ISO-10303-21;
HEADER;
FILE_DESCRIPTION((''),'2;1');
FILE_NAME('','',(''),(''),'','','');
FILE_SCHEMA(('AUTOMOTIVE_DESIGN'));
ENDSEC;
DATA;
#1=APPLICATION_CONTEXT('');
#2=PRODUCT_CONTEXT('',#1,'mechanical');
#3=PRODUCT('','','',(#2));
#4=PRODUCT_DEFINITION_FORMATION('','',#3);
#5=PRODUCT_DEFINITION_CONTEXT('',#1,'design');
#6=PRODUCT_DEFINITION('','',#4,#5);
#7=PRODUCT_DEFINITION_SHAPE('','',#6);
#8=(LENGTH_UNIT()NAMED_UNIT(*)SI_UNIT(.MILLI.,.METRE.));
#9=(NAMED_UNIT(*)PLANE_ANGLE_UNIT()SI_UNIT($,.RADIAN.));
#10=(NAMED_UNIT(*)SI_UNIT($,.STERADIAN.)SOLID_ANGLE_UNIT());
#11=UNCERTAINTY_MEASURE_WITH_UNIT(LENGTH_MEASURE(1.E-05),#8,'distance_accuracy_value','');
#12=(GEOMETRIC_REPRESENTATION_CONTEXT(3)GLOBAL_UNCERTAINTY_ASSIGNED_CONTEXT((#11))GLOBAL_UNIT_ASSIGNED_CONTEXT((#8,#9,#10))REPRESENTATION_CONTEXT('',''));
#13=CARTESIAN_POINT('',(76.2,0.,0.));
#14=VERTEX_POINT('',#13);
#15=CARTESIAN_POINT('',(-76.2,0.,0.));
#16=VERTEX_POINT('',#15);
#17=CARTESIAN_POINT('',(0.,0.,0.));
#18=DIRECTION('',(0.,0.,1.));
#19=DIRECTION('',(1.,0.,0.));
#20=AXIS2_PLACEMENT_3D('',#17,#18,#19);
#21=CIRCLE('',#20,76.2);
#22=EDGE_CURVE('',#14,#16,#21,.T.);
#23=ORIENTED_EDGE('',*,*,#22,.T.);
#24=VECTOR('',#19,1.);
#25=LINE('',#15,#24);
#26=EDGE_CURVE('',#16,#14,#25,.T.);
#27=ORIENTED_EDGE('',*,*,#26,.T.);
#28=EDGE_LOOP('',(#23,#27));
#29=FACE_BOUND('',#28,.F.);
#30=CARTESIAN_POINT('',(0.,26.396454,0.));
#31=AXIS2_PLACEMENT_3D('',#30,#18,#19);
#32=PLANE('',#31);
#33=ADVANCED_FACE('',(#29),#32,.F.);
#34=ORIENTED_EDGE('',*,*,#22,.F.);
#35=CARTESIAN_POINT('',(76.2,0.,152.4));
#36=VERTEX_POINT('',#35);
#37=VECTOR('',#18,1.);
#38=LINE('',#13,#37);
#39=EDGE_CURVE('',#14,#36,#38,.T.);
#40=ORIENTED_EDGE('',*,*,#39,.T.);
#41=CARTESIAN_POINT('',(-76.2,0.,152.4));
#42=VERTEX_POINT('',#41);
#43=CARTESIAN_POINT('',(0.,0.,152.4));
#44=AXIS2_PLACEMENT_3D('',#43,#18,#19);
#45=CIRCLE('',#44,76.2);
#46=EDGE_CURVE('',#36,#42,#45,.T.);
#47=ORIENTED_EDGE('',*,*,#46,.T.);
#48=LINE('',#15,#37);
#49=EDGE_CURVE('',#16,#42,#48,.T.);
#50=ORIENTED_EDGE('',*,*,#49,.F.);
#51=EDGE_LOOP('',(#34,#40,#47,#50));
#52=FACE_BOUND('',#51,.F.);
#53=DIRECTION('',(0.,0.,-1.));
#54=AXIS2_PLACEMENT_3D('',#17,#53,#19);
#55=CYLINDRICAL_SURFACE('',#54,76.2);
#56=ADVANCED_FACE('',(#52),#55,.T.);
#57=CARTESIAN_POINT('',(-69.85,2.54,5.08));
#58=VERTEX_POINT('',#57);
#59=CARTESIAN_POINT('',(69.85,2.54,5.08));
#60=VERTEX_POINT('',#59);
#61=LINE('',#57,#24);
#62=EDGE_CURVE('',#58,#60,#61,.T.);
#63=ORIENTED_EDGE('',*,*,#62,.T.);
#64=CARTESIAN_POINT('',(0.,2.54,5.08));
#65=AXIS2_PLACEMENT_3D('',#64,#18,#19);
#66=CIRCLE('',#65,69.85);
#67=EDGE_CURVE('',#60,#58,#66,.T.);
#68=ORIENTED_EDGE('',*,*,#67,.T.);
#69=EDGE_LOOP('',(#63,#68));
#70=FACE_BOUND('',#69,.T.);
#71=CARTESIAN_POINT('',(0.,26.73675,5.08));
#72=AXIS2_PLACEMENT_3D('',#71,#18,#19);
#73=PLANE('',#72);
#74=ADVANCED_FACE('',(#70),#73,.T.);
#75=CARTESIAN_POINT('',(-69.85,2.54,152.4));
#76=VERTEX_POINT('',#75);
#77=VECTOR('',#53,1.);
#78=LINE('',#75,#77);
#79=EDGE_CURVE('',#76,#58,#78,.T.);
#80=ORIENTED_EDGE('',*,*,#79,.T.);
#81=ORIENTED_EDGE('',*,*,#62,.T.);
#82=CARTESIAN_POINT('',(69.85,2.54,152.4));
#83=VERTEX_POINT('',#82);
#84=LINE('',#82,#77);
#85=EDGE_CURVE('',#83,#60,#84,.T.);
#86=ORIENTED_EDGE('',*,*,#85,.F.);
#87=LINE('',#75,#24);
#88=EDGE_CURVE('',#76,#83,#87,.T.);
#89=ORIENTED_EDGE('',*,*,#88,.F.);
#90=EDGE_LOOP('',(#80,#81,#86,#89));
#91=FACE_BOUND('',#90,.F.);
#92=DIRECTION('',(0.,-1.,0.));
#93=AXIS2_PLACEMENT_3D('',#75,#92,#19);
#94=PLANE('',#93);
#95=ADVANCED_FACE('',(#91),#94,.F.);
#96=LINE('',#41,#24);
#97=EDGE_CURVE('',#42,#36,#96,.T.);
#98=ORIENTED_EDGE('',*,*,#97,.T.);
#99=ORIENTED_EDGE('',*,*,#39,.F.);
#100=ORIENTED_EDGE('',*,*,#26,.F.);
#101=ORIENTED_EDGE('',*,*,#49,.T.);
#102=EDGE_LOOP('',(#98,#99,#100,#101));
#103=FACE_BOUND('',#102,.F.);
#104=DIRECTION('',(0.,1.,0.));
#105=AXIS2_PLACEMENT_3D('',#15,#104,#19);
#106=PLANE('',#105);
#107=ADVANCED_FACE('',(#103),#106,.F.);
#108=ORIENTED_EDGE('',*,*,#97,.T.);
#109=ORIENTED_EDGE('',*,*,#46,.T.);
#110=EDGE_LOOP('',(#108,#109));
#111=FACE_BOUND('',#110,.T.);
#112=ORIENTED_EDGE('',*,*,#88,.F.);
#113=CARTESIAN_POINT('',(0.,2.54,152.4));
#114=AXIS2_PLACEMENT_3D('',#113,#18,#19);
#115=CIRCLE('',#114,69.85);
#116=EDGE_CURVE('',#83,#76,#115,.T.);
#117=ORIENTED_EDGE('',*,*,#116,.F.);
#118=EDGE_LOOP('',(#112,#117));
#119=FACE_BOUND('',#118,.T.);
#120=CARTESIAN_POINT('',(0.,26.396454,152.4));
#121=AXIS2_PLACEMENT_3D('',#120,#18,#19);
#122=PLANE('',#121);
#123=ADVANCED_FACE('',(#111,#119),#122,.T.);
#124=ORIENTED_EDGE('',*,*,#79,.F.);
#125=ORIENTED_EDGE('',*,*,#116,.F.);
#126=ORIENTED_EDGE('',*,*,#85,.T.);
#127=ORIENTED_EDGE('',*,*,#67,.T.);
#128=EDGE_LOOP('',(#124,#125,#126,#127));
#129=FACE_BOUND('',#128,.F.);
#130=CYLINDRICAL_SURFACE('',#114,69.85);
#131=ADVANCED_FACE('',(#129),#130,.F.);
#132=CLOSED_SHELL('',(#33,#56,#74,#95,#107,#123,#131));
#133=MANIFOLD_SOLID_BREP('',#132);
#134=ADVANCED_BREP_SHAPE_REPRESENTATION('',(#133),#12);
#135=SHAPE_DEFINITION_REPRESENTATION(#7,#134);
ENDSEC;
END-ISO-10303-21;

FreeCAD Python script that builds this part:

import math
import FreeCAD as App
import Part
import Sketcher
from FreeCAD import Vector
Q = App.Units.Quantity

doc = App.newDocument("Part")
body = doc.addObject("PartDesign::Body", "Body")

sketch1 = doc.addObject("Sketcher::SketchObject", "Sketch")
body.addObject(sketch1)
sketch1.AttachmentSupport = (doc.XY_Plane, [""])
sketch1.MapMode = "FlatFace"
sketch1.addGeometry([
    Part.LineSegment(Vector(-76.2, 0, 0), Vector(76.2, 0, 0)),
    Part.ArcOfCircle(Part.Circle(Vector(0, 0, 0), Vector(0, 0, 1), 76.2), math.radians(0), math.radians(180)),
], False)
sketch1.addConstraint([
    Sketcher.Constraint("Coincident", 0, 1, 1, 2),
    Sketcher.Constraint("Coincident", 1, 1, 0, 2),
    Sketcher.Constraint("Horizontal", 0),
    Sketcher.Constraint("Coincident", 1, 3, -1, 1),
    Sketcher.Constraint("PointOnObject", 0, 1, -1),
    Sketcher.Constraint("Radius", 1, Q("3 in")),
])
pad1 = doc.addObject("PartDesign::Pad", "Pad")
body.addObject(pad1)
pad1.Profile = sketch1
pad1.Length = Q("6 in")

sketch2 = doc.addObject("Sketcher::SketchObject", "Sketch001")
body.addObject(sketch2)
sketch2.AttachmentSupport = (doc.XY_Plane, [""])
sketch2.MapMode = "FlatFace"
sketch2.AttachmentOffset = App.Placement(Vector(0, 0, 6 * 25.4), App.Rotation())
sketch2.addGeometry([
    Part.ArcOfCircle(Part.Circle(Vector(0, 2.54, 0), Vector(0, 0, 1), 69.85), math.radians(0), math.radians(180)),
    Part.LineSegment(Vector(-69.85, 2.54, 0), Vector(69.85, 2.54, 0)),
], False)
sketch2.addConstraint([
    Sketcher.Constraint("Coincident", 0, 1, 1, 2),
    Sketcher.Constraint("Coincident", 1, 1, 0, 2),
    Sketcher.Constraint("Horizontal", 1),
    Sketcher.Constraint("PointOnObject", 0, 3, -2),
    Sketcher.Constraint("Radius", 0, Q("2.75 in")),
    Sketcher.Constraint("DistanceY", -1, 1, 0, 3, Q("0.1 in")),
    Sketcher.Constraint("DistanceY", -1, 1, 0, 1, Q("0.1 in")),
])
pocket1 = doc.addObject("PartDesign::Pocket", "Pocket")
body.addObject(pocket1)
pocket1.Profile = sketch2
pocket1.Length = Q("5.8 in")

doc.recompute()
